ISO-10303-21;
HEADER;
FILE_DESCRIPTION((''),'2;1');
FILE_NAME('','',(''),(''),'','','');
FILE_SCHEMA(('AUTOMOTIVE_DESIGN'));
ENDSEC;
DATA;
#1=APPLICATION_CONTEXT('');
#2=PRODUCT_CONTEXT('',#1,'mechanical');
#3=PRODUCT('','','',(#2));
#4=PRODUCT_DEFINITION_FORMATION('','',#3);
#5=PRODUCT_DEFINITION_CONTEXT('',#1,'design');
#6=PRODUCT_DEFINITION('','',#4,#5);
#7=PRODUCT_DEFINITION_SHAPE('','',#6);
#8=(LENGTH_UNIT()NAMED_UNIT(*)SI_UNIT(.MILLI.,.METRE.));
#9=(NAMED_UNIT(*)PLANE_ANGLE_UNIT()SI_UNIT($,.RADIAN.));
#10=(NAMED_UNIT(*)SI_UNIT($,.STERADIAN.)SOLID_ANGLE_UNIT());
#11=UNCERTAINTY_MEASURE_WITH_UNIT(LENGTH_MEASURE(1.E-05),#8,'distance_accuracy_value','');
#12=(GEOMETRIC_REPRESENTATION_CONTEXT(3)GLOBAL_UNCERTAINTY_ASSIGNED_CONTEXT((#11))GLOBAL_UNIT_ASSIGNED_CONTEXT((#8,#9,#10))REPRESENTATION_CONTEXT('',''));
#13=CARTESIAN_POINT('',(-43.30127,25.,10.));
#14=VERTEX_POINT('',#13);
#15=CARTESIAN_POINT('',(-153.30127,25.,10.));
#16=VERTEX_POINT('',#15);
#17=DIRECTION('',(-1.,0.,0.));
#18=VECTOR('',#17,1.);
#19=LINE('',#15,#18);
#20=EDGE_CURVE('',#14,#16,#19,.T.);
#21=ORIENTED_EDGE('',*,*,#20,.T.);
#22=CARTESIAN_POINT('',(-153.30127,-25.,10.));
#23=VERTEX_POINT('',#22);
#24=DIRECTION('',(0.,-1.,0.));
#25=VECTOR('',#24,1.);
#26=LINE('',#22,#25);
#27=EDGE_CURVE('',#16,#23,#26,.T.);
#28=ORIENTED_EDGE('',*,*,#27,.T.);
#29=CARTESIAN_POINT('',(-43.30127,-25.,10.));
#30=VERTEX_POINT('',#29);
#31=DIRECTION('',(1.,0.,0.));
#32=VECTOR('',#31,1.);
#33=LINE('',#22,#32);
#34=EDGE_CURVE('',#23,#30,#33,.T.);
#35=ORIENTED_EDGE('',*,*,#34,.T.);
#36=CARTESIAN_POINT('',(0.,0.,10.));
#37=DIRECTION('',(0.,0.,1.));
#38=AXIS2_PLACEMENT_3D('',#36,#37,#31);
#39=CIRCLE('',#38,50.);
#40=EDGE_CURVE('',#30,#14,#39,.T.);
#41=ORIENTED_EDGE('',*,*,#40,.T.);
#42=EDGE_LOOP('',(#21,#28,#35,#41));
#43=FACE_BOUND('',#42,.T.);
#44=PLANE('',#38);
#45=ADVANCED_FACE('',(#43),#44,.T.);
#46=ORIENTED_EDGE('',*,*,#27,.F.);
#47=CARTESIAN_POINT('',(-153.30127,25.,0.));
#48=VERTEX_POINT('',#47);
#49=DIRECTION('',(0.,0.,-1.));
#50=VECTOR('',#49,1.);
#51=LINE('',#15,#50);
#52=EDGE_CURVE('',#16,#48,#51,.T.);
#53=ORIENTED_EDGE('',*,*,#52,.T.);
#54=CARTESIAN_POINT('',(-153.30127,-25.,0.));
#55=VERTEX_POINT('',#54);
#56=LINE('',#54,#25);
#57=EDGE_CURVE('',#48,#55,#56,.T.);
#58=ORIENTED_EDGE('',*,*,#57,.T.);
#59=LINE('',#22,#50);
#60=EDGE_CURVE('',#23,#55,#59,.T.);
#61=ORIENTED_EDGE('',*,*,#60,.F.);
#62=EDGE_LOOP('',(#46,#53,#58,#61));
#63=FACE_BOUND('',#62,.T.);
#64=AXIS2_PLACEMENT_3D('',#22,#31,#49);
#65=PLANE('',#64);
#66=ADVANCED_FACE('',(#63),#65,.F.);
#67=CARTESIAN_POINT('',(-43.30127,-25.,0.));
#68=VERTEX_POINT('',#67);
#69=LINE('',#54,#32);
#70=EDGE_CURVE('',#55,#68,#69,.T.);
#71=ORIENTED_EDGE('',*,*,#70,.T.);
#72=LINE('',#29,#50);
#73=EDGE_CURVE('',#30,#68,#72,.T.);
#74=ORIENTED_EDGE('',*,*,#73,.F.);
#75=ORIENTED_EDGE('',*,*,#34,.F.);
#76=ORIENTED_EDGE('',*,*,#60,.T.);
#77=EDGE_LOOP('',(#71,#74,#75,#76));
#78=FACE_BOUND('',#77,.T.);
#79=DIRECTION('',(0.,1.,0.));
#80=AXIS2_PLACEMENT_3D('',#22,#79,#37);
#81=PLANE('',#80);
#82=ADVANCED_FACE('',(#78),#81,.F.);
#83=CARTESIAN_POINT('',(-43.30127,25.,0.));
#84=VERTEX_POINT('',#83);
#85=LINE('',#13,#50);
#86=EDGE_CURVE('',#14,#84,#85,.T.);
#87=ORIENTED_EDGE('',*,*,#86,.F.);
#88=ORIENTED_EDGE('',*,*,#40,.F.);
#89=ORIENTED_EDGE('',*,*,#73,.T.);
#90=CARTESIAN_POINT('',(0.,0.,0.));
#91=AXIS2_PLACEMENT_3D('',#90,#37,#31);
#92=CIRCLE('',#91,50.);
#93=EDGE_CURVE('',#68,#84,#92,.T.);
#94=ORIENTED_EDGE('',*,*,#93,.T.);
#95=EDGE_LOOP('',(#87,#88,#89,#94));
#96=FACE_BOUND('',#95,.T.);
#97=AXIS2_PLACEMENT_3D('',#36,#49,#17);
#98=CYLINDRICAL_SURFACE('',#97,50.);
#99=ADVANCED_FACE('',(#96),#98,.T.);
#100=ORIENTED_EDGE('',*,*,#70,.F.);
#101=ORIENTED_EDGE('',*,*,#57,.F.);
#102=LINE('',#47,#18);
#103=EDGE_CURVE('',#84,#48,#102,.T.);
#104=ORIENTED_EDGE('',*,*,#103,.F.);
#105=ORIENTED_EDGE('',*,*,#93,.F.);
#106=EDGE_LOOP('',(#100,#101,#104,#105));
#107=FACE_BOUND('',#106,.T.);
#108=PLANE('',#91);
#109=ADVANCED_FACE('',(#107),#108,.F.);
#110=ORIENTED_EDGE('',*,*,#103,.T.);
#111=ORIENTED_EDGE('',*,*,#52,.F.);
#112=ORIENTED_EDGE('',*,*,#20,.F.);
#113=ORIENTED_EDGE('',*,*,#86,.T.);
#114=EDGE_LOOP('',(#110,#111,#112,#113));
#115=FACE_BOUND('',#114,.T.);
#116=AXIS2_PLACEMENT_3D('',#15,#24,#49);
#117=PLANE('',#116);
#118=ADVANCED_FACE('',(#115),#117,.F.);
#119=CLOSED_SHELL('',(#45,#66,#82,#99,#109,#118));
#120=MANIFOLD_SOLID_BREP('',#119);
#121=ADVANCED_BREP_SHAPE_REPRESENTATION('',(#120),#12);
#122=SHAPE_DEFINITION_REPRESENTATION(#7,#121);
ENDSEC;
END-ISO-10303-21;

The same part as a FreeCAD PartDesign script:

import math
import FreeCAD as App
import Part
import Sketcher

V = App.Vector
Q = App.Units.Quantity

doc = App.newDocument("Part")
body = doc.addObject("PartDesign::Body", "Body")

# Sketch on XY plane
sketch1 = body.newObject("Sketcher::SketchObject", "Sketch")
sketch1.AttachmentSupport = (doc.getObject("XY_Plane"), [""])
sketch1.MapMode = "FlatFace"
sketch1.addGeometry([
    Part.LineSegment(V(-153.30127, 25, 0), V(-153.30127, -25, 0)),
    Part.LineSegment(V(-153.30127, -25, 0), V(-43.30127, -25, 0)),
    Part.ArcOfCircle(Part.Circle(V(0, 0, 0), V(0, 0, 1), 50), math.radians(-150), math.radians(150)),
    Part.LineSegment(V(-43.30127, 25, 0), V(-153.30127, 25, 0)),
], False)
sketch1.addConstraint([
    Sketcher.Constraint("Coincident", 0, 2, 1, 1),
    Sketcher.Constraint("Coincident", 1, 2, 2, 1),
    Sketcher.Constraint("Coincident", 2, 2, 3, 1),
    Sketcher.Constraint("Coincident", 3, 2, 0, 1),
    Sketcher.Constraint("Vertical", 0),
    Sketcher.Constraint("Horizontal", 1),
    Sketcher.Constraint("Horizontal", 3),
    Sketcher.Constraint("Coincident", 2, 3, -1, 1),
    Sketcher.Constraint("Vertical", 1, 2, 2, 2),
    Sketcher.Constraint("Radius", 2, Q("50 mm")),
    Sketcher.Constraint("DistanceX", 1, 1, 1, 2, Q("110 mm")),
    Sketcher.Constraint("DistanceY", 0, 2, 0, 1, Q("50 mm")),
])
pad1 = body.newObject("PartDesign::Pad", "Pad")
pad1.Profile = sketch1
pad1.Length = 10

doc.recompute()
